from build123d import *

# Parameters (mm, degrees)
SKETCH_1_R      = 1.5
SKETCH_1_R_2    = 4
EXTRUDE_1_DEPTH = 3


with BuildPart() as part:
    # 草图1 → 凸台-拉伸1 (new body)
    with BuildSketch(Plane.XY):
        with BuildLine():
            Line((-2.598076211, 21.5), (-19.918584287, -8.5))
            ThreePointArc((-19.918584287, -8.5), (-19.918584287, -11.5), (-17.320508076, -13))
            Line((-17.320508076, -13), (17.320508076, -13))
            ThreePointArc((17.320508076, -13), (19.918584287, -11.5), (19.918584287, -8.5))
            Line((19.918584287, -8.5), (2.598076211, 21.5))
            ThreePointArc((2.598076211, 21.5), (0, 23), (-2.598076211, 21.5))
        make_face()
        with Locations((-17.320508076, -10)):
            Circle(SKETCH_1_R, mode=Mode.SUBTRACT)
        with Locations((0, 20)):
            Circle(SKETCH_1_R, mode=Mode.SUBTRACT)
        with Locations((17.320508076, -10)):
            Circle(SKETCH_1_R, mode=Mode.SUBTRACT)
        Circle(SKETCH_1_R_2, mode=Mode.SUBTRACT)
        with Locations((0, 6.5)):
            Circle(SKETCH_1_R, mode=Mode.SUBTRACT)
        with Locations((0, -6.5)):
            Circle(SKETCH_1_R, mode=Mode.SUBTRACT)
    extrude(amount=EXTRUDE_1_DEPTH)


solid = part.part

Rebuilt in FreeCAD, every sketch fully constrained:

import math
import FreeCAD as App
import Part
import Sketcher
from FreeCAD import Vector
Q = App.Units.Quantity

doc = App.newDocument("Part")
body = doc.addObject("PartDesign::Body", "Body")

# Sketch on XY plane
sketch1 = body.newObject("Sketcher::SketchObject", "Sketch")
sketch1.AttachmentSupport = (doc.getObject("XY_Plane"), [""])
sketch1.MapMode = "FlatFace"
sketch1.addGeometry([
    Part.LineSegment(Vector(-2.6, 21.5, 0), Vector(-19.9, -8.5, 0)),  # 0
    Part.ArcOfCircle(Part.Circle(Vector(-17.3, -10, 0), Vector(0, 0, 1), 3), math.radians(150), math.radians(270)),  # 1
    Part.LineSegment(Vector(-17.3, -13, 0), Vector(17.3, -13, 0)),  # 2
    Part.ArcOfCircle(Part.Circle(Vector(17.3, -10, 0), Vector(0, 0, 1), 3), math.radians(-90), math.radians(30)),  # 3
    Part.LineSegment(Vector(19.9, -8.5, 0), Vector(2.6, 21.5, 0)),  # 4
    Part.ArcOfCircle(Part.Circle(Vector(0, 20, 0), Vector(0, 0, 1), 3), math.radians(30), math.radians(150)),  # 5
    Part.Circle(Vector(-17.3, -10, 0), Vector(0, 0, 1), 1.5),  # 6
    Part.Circle(Vector(0, -6.5, 0), Vector(0, 0, 1), 1.5),  # 7
    Part.Circle(Vector(17.3, -10, 0), Vector(0, 0, 1), 1.5),  # 8
    Part.Circle(Vector(0, 0, 0), Vector(0, 0, 1), 4),  # 9
    Part.Circle(Vector(0, 6.5, 0), Vector(0, 0, 1), 1.5),  # 10
    Part.Circle(Vector(0, 20, 0), Vector(0, 0, 1), 1.5),  # 11
], False)
sketch1.addConstraint([
    Sketcher.Constraint("Tangent", 0, 2, 1, 1),
    Sketcher.Constraint("Tangent", 1, 2, 2, 1),
    Sketcher.Constraint("Tangent", 2, 2, 3, 1),
    Sketcher.Constraint("Tangent", 3, 2, 4, 1),
    Sketcher.Constraint("Tangent", 4, 2, 5, 1),
    Sketcher.Constraint("Tangent", 5, 2, 0, 1),
    Sketcher.Constraint("Horizontal", 2),
    Sketcher.Constraint("Coincident", 9, 3, -1, 1),
    Sketcher.Constraint("Coincident", 6, 3, 1, 3),
    Sketcher.Constraint("Coincident", 8, 3, 3, 3),
    Sketcher.Constraint("Coincident", 11, 3, 5, 3),
    Sketcher.Constraint("Equal", 1, 3),
    Sketcher.Constraint("Equal", 3, 5),
    Sketcher.Constraint("Equal", 6, 7),
    Sketcher.Constraint("Equal", 7, 8),
    Sketcher.Constraint("Equal", 8, 10),
    Sketcher.Constraint("Equal", 10, 11),
    Sketcher.Constraint("Symmetric", 7, 3, 10, 3, -1, 1),
    Sketcher.Constraint("Symmetric", 0, 2, 3, 2, -2),
    Sketcher.Constraint("PointOnObject", 7, 3, -2),
    Sketcher.Constraint("Diameter", 6, 3.0),
    Sketcher.Constraint("Diameter", 9, 8.0),
    Sketcher.Constraint("Radius", 1, 3.0),
    Sketcher.Constraint("Angle", 0, Q("-120 deg")),
    Sketcher.Constraint("DistanceY", 1, 3, -1, 1, 10.0),
    Sketcher.Constraint("DistanceY", -1, 1, 5, 3, 20.0),
    Sketcher.Constraint("DistanceY", 7, 3, 10, 3, 13.0),
])
pad1 = body.newObject("PartDesign::Pad", "Pad")
pad1.Profile = sketch1
pad1.Length = 3

doc.recompute()
